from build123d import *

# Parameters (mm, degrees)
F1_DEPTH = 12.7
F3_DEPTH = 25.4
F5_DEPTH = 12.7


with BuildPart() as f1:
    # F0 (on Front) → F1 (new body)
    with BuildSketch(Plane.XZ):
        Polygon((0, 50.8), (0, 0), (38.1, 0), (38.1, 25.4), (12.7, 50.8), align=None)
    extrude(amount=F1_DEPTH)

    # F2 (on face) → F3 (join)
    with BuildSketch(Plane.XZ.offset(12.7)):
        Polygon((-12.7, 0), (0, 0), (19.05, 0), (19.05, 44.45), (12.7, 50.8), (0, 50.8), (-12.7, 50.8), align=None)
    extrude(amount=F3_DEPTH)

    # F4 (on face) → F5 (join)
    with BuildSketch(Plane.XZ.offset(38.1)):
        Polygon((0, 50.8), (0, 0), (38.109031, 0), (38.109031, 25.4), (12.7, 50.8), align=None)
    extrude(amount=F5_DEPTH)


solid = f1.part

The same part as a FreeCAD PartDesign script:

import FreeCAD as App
import Part
import Sketcher

V = App.Vector
Q = App.Units.Quantity

doc = App.newDocument("Part")
body = doc.addObject("PartDesign::Body", "Body")

# Sketch on XZ plane
sketch1 = body.newObject("Sketcher::SketchObject", "Sketch")
sketch1.AttachmentSupport = (doc.getObject("XZ_Plane"), [""])
sketch1.MapMode = "FlatFace"
sketch1.addGeometry(Part.LineSegment(V(0, 51, 0), V(0, 0, 0)), False)
sketch1.addGeometry(Part.LineSegment(V(0, 0, 0), V(38, 0, 0)), False)
sketch1.addGeometry(Part.LineSegment(V(38, 0, 0), V(38, 25, 0)), False)
sketch1.addGeometry(Part.LineSegment(V(38, 25, 0), V(13, 51, 0)), False)
sketch1.addGeometry(Part.LineSegment(V(13, 51, 0), V(0, 51, 0)), False)
sketch1.addConstraint(Sketcher.Constraint("Coincident", 0, 2, 1, 1))
sketch1.addConstraint(Sketcher.Constraint("Coincident", 1, 2, 2, 1))
sketch1.addConstraint(Sketcher.Constraint("Coincident", 2, 2, 3, 1))
sketch1.addConstraint(Sketcher.Constraint("Coincident", 3, 2, 4, 1))
sketch1.addConstraint(Sketcher.Constraint("Coincident", 4, 2, 0, 1))
sketch1.addConstraint(Sketcher.Constraint("Vertical", 0))
sketch1.addConstraint(Sketcher.Constraint("Horizontal", 1))
sketch1.addConstraint(Sketcher.Constraint("Vertical", 2))
sketch1.addConstraint(Sketcher.Constraint("Horizontal", 4))
sketch1.addConstraint(Sketcher.Constraint("Coincident", 0, 2, -1, 1))
sketch1.addConstraint(Sketcher.Constraint("DistanceY", 0, 2, 0, 1, Q("2 in")))
sketch1.addConstraint(Sketcher.Constraint("DistanceY", 2, 1, 2, 2, Q("1 in")))
sketch1.addConstraint(Sketcher.Constraint("DistanceX", 1, 1, 1, 2, Q("1.5 in")))
sketch1.addConstraint(Sketcher.Constraint("DistanceX", 4, 2, 4, 1, Q("0.5 in")))
pad1 = body.newObject("PartDesign::Pad", "Pad")
pad1.Profile = sketch1
pad1.Length = Q("0.5 in")

# Sketch on XZ plane
sketch2 = body.newObject("Sketcher::SketchObject", "Sketch001")
sketch2.AttachmentSupport = (doc.getObject("XZ_Plane"), [""])
sketch2.MapMode = "FlatFace"
sketch2.AttachmentOffset = App.Placement(V(0, 0, 0.5 * 25.4), App.Rotation())
sketch2.addGeometry(Part.LineSegment(V(-13, 0, 0), V(19, 0, 0)), False)
sketch2.addGeometry(Part.LineSegment(V(19, 0, 0), V(19, 44, 0)), False)
sketch2.addGeometry(Part.LineSegment(V(19, 44, 0), V(13, 51, 0)), False)
sketch2.addGeometry(Part.LineSegment(V(13, 51, 0), V(-13, 51, 0)), False)
sketch2.addGeometry(Part.LineSegment(V(-13, 51, 0), V(-13, 0, 0)), False)
sketch2.addConstraint(Sketcher.Constraint("Coincident", 0, 2, 1, 1))
sketch2.addConstraint(Sketcher.Constraint("Coincident", 1, 2, 2, 1))
sketch2.addConstraint(Sketcher.Constraint("Coincident", 2, 2, 3, 1))
sketch2.addConstraint(Sketcher.Constraint("Coincident", 3, 2, 4, 1))
sketch2.addConstraint(Sketcher.Constraint("Coincident", 4, 2, 0, 1))
sketch2.addConstraint(Sketcher.Constraint("Horizontal", 0))
sketch2.addConstraint(Sketcher.Constraint("Vertical", 1))
sketch2.addConstraint(Sketcher.Constraint("Horizontal", 3))
sketch2.addConstraint(Sketcher.Constraint("Vertical", 4))
sketch2.addConstraint(Sketcher.Constraint("PointOnObject", 0, 2, -1))
sketch2.addConstraint(Sketcher.Constraint("DistanceX", 3, 2, 3, 1, Q("1 in")))
sketch2.addConstraint(Sketcher.Constraint("DistanceY", 4, 2, 4, 1, Q("2 in")))
sketch2.addConstraint(Sketcher.Constraint("Angle", 2, Q("135 deg")))
sketch2.addConstraint(Sketcher.Constraint("DistanceX", 0, 1, 0, 2, Q("1.25 in")))
sketch2.addConstraint(Sketcher.Constraint("DistanceX", -1, 1, 2, 2, Q("0.5 in")))
pad2 = body.newObject("PartDesign::Pad", "Pad001")
pad2.Profile = sketch2
pad2.Length = Q("1 in")

# Sketch on XZ plane
sketch3 = body.newObject("Sketcher::SketchObject", "Sketch002")
sketch3.AttachmentSupport = (doc.getObject("XZ_Plane"), [""])
sketch3.MapMode = "FlatFace"
sketch3.AttachmentOffset = App.Placement(V(0, 0, 1.5 * 25.4), App.Rotation())
sketch3.addGeometry(Part.LineSegment(V(0, 51, 0), V(0, 0, 0)), False)
sketch3.addGeometry(Part.LineSegment(V(0, 0, 0), V(38, 0, 0)), False)
sketch3.addGeometry(Part.LineSegment(V(38, 0, 0), V(38, 25, 0)), False)
sketch3.addGeometry(Part.LineSegment(V(38, 25, 0), V(13, 51, 0)), False)
sketch3.addGeometry(Part.LineSegment(V(13, 51, 0), V(0, 51, 0)), False)
sketch3.addConstraint(Sketcher.Constraint("Coincident", 0, 2, 1, 1))
sketch3.addConstraint(Sketcher.Constraint("Coincident", 1, 2, 2, 1))
sketch3.addConstraint(Sketcher.Constraint("Coincident", 2, 2, 3, 1))
sketch3.addConstraint(Sketcher.Constraint("Coincident", 3, 2, 4, 1))
sketch3.addConstraint(Sketcher.Constraint("Coincident", 4, 2, 0, 1))
sketch3.addConstraint(Sketcher.Constraint("Vertical", 0))
sketch3.addConstraint(Sketcher.Constraint("Horizontal", 1))
sketch3.addConstraint(Sketcher.Constraint("Vertical", 2))
sketch3.addConstraint(Sketcher.Constraint("Horizontal", 4))
sketch3.addConstraint(Sketcher.Constraint("Coincident", 0, 2, -1, 1))
sketch3.addConstraint(Sketcher.Constraint("DistanceY", 0, 2, 0, 1, Q("2 in")))
sketch3.addConstraint(Sketcher.Constraint("DistanceY", 2, 1, 2, 2, Q("1 in")))
sketch3.addConstraint(Sketcher.Constraint("DistanceX", 4, 2, 4, 1, Q("0.5 in")))
sketch3.addConstraint(Sketcher.Constraint("DistanceX", 1, 1, 1, 2, Q("38.109031 mm")))
pad3 = body.newObject("PartDesign::Pad", "Pad002")
pad3.Profile = sketch3
pad3.Length = Q("0.5 in")

doc.recompute()
